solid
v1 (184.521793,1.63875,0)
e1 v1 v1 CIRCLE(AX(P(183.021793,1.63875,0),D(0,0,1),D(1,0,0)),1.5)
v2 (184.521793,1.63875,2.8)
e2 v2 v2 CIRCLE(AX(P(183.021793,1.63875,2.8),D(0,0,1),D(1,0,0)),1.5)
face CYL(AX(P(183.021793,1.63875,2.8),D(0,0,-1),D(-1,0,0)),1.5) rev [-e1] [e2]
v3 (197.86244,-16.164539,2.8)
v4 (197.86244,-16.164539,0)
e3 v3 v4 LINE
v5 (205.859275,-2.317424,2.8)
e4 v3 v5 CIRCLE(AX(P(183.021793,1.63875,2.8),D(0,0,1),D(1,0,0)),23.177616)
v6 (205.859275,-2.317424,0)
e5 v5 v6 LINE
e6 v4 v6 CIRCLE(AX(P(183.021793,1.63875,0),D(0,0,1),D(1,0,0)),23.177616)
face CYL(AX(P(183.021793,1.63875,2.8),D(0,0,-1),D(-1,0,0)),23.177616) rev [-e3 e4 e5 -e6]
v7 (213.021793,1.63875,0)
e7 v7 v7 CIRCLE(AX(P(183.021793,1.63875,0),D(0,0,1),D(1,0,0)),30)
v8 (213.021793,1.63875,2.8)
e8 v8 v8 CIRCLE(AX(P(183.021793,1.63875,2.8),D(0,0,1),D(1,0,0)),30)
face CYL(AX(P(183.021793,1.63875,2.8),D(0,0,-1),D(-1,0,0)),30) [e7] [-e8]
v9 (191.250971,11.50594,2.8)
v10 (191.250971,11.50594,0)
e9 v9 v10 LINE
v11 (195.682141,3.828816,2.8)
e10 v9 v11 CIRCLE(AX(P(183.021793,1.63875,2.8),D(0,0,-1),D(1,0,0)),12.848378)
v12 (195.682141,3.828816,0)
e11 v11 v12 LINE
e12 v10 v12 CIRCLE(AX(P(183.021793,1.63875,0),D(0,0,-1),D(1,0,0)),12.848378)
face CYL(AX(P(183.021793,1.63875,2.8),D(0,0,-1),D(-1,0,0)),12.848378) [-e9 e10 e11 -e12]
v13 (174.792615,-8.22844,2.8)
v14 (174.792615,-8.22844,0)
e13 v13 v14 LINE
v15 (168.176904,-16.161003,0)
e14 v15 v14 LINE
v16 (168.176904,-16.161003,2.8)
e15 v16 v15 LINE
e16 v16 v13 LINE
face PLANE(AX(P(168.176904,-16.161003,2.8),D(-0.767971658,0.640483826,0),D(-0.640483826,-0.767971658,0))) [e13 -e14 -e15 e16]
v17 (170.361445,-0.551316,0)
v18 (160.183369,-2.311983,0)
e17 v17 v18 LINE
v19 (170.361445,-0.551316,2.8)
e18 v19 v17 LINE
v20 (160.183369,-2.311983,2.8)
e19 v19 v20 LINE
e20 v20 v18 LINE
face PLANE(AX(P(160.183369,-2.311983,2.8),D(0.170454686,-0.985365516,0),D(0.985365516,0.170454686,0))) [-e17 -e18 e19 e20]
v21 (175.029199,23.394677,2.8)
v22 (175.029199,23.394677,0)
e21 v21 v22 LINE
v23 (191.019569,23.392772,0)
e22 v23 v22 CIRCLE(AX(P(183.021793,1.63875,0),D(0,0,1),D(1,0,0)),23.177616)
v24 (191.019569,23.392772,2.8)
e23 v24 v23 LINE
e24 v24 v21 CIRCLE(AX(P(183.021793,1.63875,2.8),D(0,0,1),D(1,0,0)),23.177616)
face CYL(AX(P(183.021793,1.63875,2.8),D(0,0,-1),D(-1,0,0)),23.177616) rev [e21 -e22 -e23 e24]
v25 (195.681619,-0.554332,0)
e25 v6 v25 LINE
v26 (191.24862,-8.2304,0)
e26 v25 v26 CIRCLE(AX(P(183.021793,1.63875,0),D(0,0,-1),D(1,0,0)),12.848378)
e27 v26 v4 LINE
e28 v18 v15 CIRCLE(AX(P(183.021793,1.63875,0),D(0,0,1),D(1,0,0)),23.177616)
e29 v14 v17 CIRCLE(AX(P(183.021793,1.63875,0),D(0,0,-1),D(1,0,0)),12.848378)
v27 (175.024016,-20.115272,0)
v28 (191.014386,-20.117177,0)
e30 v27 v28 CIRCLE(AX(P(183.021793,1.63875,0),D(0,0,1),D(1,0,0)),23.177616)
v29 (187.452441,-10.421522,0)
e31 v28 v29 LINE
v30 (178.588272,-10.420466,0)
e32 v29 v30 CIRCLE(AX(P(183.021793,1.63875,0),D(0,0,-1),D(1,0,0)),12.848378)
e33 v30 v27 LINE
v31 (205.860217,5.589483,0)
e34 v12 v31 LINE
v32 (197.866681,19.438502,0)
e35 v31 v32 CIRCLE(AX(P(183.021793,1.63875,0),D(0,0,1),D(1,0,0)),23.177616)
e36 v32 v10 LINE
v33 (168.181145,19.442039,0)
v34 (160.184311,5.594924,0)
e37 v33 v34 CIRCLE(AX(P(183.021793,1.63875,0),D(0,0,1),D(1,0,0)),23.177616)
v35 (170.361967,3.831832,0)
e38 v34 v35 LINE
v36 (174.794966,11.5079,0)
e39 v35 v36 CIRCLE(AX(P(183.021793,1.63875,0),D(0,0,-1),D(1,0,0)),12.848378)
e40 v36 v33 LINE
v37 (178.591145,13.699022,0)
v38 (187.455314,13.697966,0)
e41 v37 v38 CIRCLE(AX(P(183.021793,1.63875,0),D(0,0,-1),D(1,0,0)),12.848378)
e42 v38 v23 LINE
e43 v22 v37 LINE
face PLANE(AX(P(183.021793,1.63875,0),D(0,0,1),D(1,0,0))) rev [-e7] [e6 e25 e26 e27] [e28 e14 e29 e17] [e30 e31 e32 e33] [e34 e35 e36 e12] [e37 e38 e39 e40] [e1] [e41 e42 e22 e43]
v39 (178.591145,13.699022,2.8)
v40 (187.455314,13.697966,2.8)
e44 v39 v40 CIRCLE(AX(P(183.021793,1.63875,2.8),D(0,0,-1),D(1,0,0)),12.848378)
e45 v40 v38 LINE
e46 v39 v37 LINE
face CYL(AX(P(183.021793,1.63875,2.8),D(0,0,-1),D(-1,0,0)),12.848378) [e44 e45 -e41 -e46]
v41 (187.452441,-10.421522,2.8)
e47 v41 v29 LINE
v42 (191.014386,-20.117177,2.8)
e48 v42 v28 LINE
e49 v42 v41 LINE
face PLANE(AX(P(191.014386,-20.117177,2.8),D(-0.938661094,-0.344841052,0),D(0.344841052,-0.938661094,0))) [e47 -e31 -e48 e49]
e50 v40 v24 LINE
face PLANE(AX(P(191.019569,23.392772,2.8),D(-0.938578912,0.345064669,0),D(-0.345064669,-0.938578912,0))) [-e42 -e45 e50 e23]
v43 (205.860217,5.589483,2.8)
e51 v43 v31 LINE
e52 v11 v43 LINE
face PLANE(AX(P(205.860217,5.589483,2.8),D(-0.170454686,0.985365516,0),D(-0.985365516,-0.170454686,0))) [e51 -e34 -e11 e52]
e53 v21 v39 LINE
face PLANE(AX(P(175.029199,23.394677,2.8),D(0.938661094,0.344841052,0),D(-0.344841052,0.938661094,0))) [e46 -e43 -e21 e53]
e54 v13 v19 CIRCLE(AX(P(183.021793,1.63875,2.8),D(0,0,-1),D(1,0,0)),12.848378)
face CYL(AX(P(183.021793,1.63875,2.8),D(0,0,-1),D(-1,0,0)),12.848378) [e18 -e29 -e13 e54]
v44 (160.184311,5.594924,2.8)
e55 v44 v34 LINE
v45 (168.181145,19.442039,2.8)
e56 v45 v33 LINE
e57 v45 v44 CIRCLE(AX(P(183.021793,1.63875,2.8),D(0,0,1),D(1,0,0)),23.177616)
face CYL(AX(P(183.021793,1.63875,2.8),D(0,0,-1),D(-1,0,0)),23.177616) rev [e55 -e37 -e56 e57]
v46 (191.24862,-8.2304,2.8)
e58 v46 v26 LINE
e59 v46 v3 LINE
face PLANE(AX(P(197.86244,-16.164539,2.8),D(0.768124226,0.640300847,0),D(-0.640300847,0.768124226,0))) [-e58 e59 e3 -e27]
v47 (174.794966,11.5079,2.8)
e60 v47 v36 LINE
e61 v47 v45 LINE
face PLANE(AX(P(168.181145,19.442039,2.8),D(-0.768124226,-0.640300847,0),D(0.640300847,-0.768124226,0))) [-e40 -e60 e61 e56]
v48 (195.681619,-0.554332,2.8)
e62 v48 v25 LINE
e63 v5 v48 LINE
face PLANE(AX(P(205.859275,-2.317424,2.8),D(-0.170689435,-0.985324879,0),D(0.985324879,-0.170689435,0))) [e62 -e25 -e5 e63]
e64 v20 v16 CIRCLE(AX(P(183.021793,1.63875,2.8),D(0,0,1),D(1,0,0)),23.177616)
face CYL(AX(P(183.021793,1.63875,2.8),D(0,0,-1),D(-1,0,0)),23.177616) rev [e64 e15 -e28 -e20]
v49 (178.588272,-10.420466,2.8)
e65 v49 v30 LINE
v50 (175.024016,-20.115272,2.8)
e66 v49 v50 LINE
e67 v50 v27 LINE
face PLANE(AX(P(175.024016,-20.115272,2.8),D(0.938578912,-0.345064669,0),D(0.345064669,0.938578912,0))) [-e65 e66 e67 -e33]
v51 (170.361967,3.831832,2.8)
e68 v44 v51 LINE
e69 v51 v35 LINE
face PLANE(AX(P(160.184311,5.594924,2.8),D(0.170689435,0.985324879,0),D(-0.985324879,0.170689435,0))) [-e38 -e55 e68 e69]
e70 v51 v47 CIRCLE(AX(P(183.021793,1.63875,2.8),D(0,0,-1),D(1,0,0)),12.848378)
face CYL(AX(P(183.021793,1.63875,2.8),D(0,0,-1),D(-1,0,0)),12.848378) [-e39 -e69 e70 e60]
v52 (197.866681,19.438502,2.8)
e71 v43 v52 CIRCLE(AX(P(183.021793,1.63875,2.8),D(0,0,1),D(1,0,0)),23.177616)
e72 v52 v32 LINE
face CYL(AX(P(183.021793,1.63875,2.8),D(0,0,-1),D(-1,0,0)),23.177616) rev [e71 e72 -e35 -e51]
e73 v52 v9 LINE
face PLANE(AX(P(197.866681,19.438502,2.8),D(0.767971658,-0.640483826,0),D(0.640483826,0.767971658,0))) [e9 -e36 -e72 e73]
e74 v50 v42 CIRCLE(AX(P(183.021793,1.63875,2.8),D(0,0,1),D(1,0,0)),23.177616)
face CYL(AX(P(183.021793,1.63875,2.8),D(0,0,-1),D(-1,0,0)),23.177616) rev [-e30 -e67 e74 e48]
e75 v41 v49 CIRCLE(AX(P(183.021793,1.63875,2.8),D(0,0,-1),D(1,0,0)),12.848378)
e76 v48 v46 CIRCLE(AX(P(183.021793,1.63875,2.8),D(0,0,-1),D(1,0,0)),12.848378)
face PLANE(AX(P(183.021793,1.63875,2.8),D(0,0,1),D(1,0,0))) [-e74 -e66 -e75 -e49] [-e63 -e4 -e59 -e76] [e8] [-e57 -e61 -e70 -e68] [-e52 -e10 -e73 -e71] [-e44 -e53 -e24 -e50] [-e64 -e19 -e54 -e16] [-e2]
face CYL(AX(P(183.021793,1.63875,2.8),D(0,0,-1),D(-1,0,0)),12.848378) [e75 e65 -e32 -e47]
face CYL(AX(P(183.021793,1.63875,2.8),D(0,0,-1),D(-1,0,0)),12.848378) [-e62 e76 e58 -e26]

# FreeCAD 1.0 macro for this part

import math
import FreeCAD as App
import Part
import Sketcher
Q = App.Units.Quantity

doc = App.newDocument("Part")
body = doc.addObject("PartDesign::Body", "Body")

# Sketch on XY plane
sketch1 = doc.addObject("Sketcher::SketchObject", "Sketch")
body.addObject(sketch1)
sketch1.AttachmentSupport = (doc.XY_Plane, [""])
sketch1.MapMode = "FlatFace"
sketch1.addGeometry([
    Part.Circle(App.Vector(183, 1.6, 0), App.Vector(0, 0, 1), 30),  # 0
    Part.ArcOfCircle(Part.Circle(App.Vector(183, 1.6, 0), App.Vector(0, 0, 1), 23.2), math.radians(-110), math.radians(-70)),  # 1
    Part.LineSegment(App.Vector(175, -20.1, 0), App.Vector(178.6, -10.4, 0)),  # 2
    Part.ArcOfCircle(Part.Circle(App.Vector(183, 1.6, 0), App.Vector(0, 0, 1), 12.8), math.radians(-110), math.radians(-70)),  # 3
    Part.LineSegment(App.Vector(187.5, -10.4, 0), App.Vector(191, -20.1, 0)),  # 4
    Part.ArcOfCircle(Part.Circle(App.Vector(183, 1.6, 0), App.Vector(0, 0, 1), 23.2), math.radians(-170), math.radians(-130)),  # 5
    Part.LineSegment(App.Vector(160.2, -2.3, 0), App.Vector(170.4, -0.6, 0)),  # 6
    Part.ArcOfCircle(Part.Circle(App.Vector(183, 1.6, 0), App.Vector(0, 0, 1), 12.8), math.radians(-170), math.radians(-130)),  # 7
    Part.LineSegment(App.Vector(174.8, -8.2, 0), App.Vector(168.2, -16.2, 0)),  # 8
    Part.Circle(App.Vector(183, 1.6, 0), App.Vector(0, 0, 1), 1.5),  # 9
    Part.ArcOfCircle(Part.Circle(App.Vector(183, 1.6, 0), App.Vector(0, 0, 1), 23.2), math.radians(-50), math.radians(-10)),  # 10
    Part.LineSegment(App.Vector(197.9, -16.2, 0), App.Vector(191.2, -8.2, 0)),  # 11
    Part.ArcOfCircle(Part.Circle(App.Vector(183, 1.6, 0), App.Vector(0, 0, 1), 12.8), math.radians(-50), math.radians(-10)),  # 12
    Part.LineSegment(App.Vector(195.7, -0.6, 0), App.Vector(205.9, -2.3, 0)),  # 13
    Part.LineSegment(App.Vector(170.4, 3.8, 0), App.Vector(160.2, 5.6, 0)),  # 14
    Part.ArcOfCircle(Part.Circle(App.Vector(183, 1.6, 0), App.Vector(0, 0, 1), 23.2), math.radians(130), math.radians(170)),  # 15
    Part.LineSegment(App.Vector(168.2, 19.4, 0), App.Vector(174.8, 11.5, 0)),  # 16
    Part.ArcOfCircle(Part.Circle(App.Vector(183, 1.6, 0), App.Vector(0, 0, 1), 12.8), math.radians(130), math.radians(170)),  # 17
    Part.ArcOfCircle(Part.Circle(App.Vector(183, 1.6, 0), App.Vector(0, 0, 1), 23.2), math.radians(10), math.radians(50)),  # 18
    Part.LineSegment(App.Vector(205.9, 5.6, 0), App.Vector(195.7, 3.8, 0)),  # 19
    Part.ArcOfCircle(Part.Circle(App.Vector(183, 1.6, 0), App.Vector(0, 0, 1), 12.8), math.radians(10), math.radians(50)),  # 20
    Part.LineSegment(App.Vector(191.3, 11.5, 0), App.Vector(197.9, 19.4, 0)),  # 21
    Part.ArcOfCircle(Part.Circle(App.Vector(183, 1.6, 0), App.Vector(0, 0, 1), 23.2), math.radians(70), math.radians(110)),  # 22
    Part.LineSegment(App.Vector(191, 23.4, 0), App.Vector(187.5, 13.7, 0)),  # 23
    Part.ArcOfCircle(Part.Circle(App.Vector(183, 1.6, 0), App.Vector(0, 0, 1), 12.8), math.radians(70), math.radians(110)),  # 24
    Part.LineSegment(App.Vector(178.6, 13.7, 0), App.Vector(175, 23.4, 0)),  # 25
], False)
sketch1.addConstraint([
    Sketcher.Constraint("Coincident", 1, 1, 2, 1),
    Sketcher.Constraint("Coincident", 2, 2, 3, 1),
    Sketcher.Constraint("Coincident", 3, 2, 4, 1),
    Sketcher.Constraint("Coincident", 4, 2, 1, 2),
    Sketcher.Constraint("Coincident", 5, 1, 6, 1),
    Sketcher.Constraint("Coincident", 6, 2, 7, 1),
    Sketcher.Constraint("Coincident", 7, 2, 8, 1),
    Sketcher.Constraint("Coincident", 8, 2, 5, 2),
    Sketcher.Constraint("Coincident", 10, 1, 11, 1),
    Sketcher.Constraint("Coincident", 11, 2, 12, 1),
    Sketcher.Constraint("Coincident", 12, 2, 13, 1),
    Sketcher.Constraint("Coincident", 13, 2, 10, 2),
    Sketcher.Constraint("Coincident", 14, 2, 15, 2),
    Sketcher.Constraint("Coincident", 15, 1, 16, 1),
    Sketcher.Constraint("Coincident", 16, 2, 17, 1),
    Sketcher.Constraint("Coincident", 17, 2, 14, 1),
    Sketcher.Constraint("Coincident", 18, 1, 19, 1),
    Sketcher.Constraint("Coincident", 19, 2, 20, 1),
    Sketcher.Constraint("Coincident", 20, 2, 21, 1),
    Sketcher.Constraint("Coincident", 21, 2, 18, 2),
    Sketcher.Constraint("Coincident", 22, 1, 23, 1),
    Sketcher.Constraint("Coincident", 23, 2, 24, 1),
    Sketcher.Constraint("Coincident", 24, 2, 25, 1),
    Sketcher.Constraint("Coincident", 25, 2, 22, 2),
    Sketcher.Constraint("Coincident", 1, 3, 0, 3),
    Sketcher.Constraint("Coincident", 3, 3, 0, 3),
    Sketcher.Constraint("Coincident", 5, 3, 0, 3),
    Sketcher.Constraint("Coincident", 7, 3, 0, 3),
    Sketcher.Constraint("Coincident", 9, 3, 0, 3),
    Sketcher.Constraint("Coincident", 10, 3, 0, 3),
    Sketcher.Constraint("Coincident", 12, 3, 0, 3),
    Sketcher.Constraint("Coincident", 15, 3, 0, 3),
    Sketcher.Constraint("Coincident", 17, 3, 0, 3),
    Sketcher.Constraint("Coincident", 18, 3, 0, 3),
    Sketcher.Constraint("Coincident", 20, 3, 0, 3),
    Sketcher.Constraint("Coincident", 22, 3, 0, 3),
    Sketcher.Constraint("Coincident", 24, 3, 0, 3),
    Sketcher.Constraint("Equal", 1, 5),
    Sketcher.Constraint("Equal", 3, 7),
    Sketcher.Constraint("Equal", 5, 10),
    Sketcher.Constraint("Equal", 7, 12),
    Sketcher.Constraint("Equal", 10, 15),
    Sketcher.Constraint("Equal", 12, 17),
    Sketcher.Constraint("Equal", 15, 18),
    Sketcher.Constraint("Equal", 17, 20),
    Sketcher.Constraint("Equal", 18, 22),
    Sketcher.Constraint("Equal", 20, 24),
    Sketcher.Constraint("Parallel", 13, 14),
    Sketcher.Constraint("Parallel", 11, 16),
    Sketcher.Constraint("Parallel", 6, 19),
    Sketcher.Constraint("Parallel", 8, 21),
    Sketcher.Constraint("Parallel", 2, 23),
    Sketcher.Constraint("Parallel", 4, 25),
    Sketcher.Constraint("Diameter", 0, Q("60 mm")),
    Sketcher.Constraint("Diameter", 9, Q("3 mm")),
    Sketcher.Constraint("DistanceX", 3, 2, 10, 1, Q("10.409999 mm")),
    Sketcher.Constraint("DistanceX", 15, 1, 24, 2, Q("10.409999 mm")),
    Sketcher.Constraint("Radius", 1, Q("23.177616 mm")),
    Sketcher.Constraint("Radius", 3, Q("12.848378 mm")),
    Sketcher.Constraint("DistanceX", 11, 2, 12, 2, Q("4.432999 mm")),
    Sketcher.Constraint("DistanceX", 17, 2, 16, 2, Q("4.432999 mm")),
    Sketcher.Constraint("DistanceY", 11, 2, -1, 1, Q("8.2304 mm")),
    Sketcher.Constraint("DistanceY", -1, 1, 16, 2, Q("11.5079 mm")),
    Sketcher.Constraint("DistanceX", -1, 1, 25, 2, Q("175.029199 mm")),
    Sketcher.Constraint("DistanceX", 7, 2, 1, 1, Q("0.231401 mm")),
    Sketcher.Constraint("DistanceX", 15, 1, 6, 2, Q("2.180299 mm")),
    Sketcher.Constraint("DistanceX", 22, 1, 20, 2, Q("0.231401 mm")),
    Sketcher.Constraint("DistanceY", -1, 1, 0, 3, Q("1.63875 mm")),
    Sketcher.Constraint("DistanceX", -1, 1, 2, 2, Q("178.588272 mm")),
    Sketcher.Constraint("DistanceX", -1, 1, 3, 2, Q("187.452441 mm")),
    Sketcher.Constraint("DistanceX", -1, 1, 5, 1, Q("160.183369 mm")),
    Sketcher.Constraint("DistanceY", 7, 2, -1, 1, Q("8.22844 mm")),
    Sketcher.Constraint("DistanceY", 10, 1, -1, 1, Q("16.164539 mm")),
    Sketcher.Constraint("DistanceX", -1, 1, 14, 2, Q("160.184311 mm")),
    Sketcher.Constraint("DistanceX", -1, 1, 19, 2, Q("195.682141 mm")),
    Sketcher.Constraint("DistanceX", -1, 1, 20, 2, Q("191.250971 mm")),
    Sketcher.Constraint("DistanceX", -1, 1, 21, 2, Q("197.866681 mm")),
])
pad1 = doc.addObject("PartDesign::Pad", "Pad")
body.addObject(pad1)
pad1.Profile = sketch1
pad1.Length = 2.8

doc.recompute()
